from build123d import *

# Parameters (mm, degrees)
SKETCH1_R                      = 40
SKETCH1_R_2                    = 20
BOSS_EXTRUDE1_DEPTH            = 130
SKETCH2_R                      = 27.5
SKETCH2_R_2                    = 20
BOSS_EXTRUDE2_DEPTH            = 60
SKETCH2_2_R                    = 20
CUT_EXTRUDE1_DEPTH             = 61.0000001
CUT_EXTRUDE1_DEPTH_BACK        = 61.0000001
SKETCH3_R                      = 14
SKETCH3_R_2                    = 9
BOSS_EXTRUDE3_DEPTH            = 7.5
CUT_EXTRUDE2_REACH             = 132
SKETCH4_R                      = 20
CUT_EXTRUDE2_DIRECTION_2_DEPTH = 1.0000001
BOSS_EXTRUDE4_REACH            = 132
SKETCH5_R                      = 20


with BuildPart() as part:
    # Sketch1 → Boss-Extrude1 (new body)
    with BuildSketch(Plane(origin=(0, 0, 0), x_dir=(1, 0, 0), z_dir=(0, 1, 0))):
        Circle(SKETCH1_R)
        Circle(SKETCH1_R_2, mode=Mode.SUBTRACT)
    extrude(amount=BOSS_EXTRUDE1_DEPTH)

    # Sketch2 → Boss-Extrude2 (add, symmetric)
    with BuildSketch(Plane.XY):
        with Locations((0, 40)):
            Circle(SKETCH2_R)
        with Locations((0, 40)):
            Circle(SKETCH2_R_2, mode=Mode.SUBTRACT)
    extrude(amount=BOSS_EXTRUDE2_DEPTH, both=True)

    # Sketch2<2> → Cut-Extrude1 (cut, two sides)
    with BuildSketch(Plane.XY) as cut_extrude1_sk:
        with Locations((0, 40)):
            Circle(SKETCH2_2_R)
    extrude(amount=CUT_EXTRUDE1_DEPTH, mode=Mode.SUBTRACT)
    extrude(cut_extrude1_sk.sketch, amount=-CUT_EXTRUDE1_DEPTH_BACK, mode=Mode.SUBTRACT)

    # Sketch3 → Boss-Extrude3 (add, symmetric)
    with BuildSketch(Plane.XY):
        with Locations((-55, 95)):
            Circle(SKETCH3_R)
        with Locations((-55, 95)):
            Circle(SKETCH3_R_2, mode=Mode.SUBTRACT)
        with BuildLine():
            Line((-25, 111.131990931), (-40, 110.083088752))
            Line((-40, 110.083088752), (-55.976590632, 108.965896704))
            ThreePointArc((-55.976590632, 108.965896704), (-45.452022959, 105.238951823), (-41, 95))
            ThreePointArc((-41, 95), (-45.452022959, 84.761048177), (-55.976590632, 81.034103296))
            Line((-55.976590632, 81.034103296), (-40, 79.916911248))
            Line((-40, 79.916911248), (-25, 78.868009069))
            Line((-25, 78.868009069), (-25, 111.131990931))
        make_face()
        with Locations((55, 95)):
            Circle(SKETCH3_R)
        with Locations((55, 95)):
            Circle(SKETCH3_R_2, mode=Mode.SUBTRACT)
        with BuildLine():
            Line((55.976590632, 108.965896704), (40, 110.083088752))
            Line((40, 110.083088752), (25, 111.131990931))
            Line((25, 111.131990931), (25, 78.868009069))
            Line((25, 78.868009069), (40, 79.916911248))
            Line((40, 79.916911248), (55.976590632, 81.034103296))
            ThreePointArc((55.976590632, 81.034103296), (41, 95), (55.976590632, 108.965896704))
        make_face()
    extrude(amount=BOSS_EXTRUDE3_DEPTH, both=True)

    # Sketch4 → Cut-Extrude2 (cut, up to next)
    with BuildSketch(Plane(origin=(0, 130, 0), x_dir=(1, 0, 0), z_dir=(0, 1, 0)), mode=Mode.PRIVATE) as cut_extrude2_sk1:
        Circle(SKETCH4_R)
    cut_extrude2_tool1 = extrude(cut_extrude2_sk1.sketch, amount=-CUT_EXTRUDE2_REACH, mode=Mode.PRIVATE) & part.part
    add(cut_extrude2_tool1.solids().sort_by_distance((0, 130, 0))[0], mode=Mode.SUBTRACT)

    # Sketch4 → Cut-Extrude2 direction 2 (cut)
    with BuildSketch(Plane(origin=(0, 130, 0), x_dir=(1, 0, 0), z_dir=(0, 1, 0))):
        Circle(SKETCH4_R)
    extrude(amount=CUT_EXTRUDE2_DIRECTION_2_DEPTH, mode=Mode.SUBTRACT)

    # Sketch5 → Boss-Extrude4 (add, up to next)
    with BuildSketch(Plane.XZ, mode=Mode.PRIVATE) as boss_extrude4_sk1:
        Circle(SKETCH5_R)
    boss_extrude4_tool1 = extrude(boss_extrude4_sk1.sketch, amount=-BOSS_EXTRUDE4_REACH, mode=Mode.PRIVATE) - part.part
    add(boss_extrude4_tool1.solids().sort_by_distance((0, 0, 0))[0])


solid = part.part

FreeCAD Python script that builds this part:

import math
import FreeCAD as App
import Part
import Sketcher
Q = App.Units.Quantity

doc = App.newDocument("Part")
body = doc.addObject("PartDesign::Body", "Body")

# Sketch on XZ plane
sketch1 = doc.addObject("Sketcher::SketchObject", "Sketch")
body.addObject(sketch1)
sketch1.AttachmentSupport = (doc.XZ_Plane, [""])
sketch1.MapMode = "FlatFace"
sketch1.addGeometry(Part.Circle(App.Vector(0, 0, 0), App.Vector(0, 0, 1), 40), False)
sketch1.addGeometry(Part.Circle(App.Vector(0, 0, 0), App.Vector(0, 0, 1), 20), False)
sketch1.addConstraint(Sketcher.Constraint("Coincident", 0, 3, -1, 1))
sketch1.addConstraint(Sketcher.Constraint("Coincident", 1, 3, -1, 1))
sketch1.addConstraint(Sketcher.Constraint("Diameter", 0, 80.0))
sketch1.addConstraint(Sketcher.Constraint("Diameter", 1, 40.0))
pad1 = doc.addObject("PartDesign::Pad", "Pad")
body.addObject(pad1)
pad1.Profile = sketch1
pad1.Length = 130
pad1.Reversed = True

# Sketch on XY plane
sketch2 = doc.addObject("Sketcher::SketchObject", "Sketch001")
body.addObject(sketch2)
sketch2.AttachmentSupport = (doc.XY_Plane, [""])
sketch2.MapMode = "FlatFace"
sketch2.addGeometry(Part.Circle(App.Vector(0, 40, 0), App.Vector(0, 0, 1), 28), False)
sketch2.addGeometry(Part.Circle(App.Vector(0, 40, 0), App.Vector(0, 0, 1), 20), False)
sketch2.addConstraint(Sketcher.Constraint("Coincident", 1, 3, 0, 3))
sketch2.addConstraint(Sketcher.Constraint("PointOnObject", 0, 3, -2))
sketch2.addConstraint(Sketcher.Constraint("Diameter", 0, 55.0))
sketch2.addConstraint(Sketcher.Constraint("Diameter", 1, 40.0))
sketch2.addConstraint(Sketcher.Constraint("DistanceY", -1, 1, 0, 3, 40.0))
pad2 = doc.addObject("PartDesign::Pad", "Pad001")
body.addObject(pad2)
pad2.Profile = sketch2
pad2.Length = 120
pad2.Midplane = True

# Sketch on XY plane
sketch3 = doc.addObject("Sketcher::SketchObject", "Sketch002")
body.addObject(sketch3)
sketch3.AttachmentSupport = (doc.XY_Plane, [""])
sketch3.MapMode = "FlatFace"
sketch3.addGeometry(Part.Circle(App.Vector(0, 40, 0), App.Vector(0, 0, 1), 20), False)
sketch3.addConstraint(Sketcher.Constraint("PointOnObject", 0, 3, -2))
sketch3.addConstraint(Sketcher.Constraint("Diameter", 0, 40.0))
sketch3.addConstraint(Sketcher.Constraint("DistanceY", -1, 1, 0, 3, 40.0))
pocket1 = doc.addObject("PartDesign::Pocket", "Pocket")
body.addObject(pocket1)
pocket1.Profile = sketch3
pocket1.Type = "ThroughAll"
pocket1.Midplane = True

# Sketch on XY plane
sketch4 = doc.addObject("Sketcher::SketchObject", "Sketch003")
body.addObject(sketch4)
sketch4.AttachmentSupport = (doc.XY_Plane, [""])
sketch4.MapMode = "FlatFace"
sketch4.addGeometry(Part.ArcOfCircle(Part.Circle(App.Vector(-55, 95, 0), App.Vector(0, 0, 1), 14), math.radians(94), math.radians(266)), False)
sketch4.addGeometry(Part.LineSegment(App.Vector(-56, 81, 0), App.Vector(-40, 80, 0)), False)
sketch4.addGeometry(Part.LineSegment(App.Vector(-40, 80, 0), App.Vector(-25, 79, 0)), False)
sketch4.addGeometry(Part.LineSegment(App.Vector(-25, 79, 0), App.Vector(-25, 111, 0)), False)
sketch4.addGeometry(Part.LineSegment(App.Vector(-25, 111, 0), App.Vector(-40, 110, 0)), False)
sketch4.addGeometry(Part.LineSegment(App.Vector(-40, 110, 0), App.Vector(-56, 109, 0)), False)
sketch4.addGeometry(Part.Circle(App.Vector(-55, 95, 0), App.Vector(0, 0, 1), 9), False)
sketch4.addGeometry(Part.LineSegment(App.Vector(56, 109, 0), App.Vector(40, 110, 0)), False)
sketch4.addGeometry(Part.LineSegment(App.Vector(40, 110, 0), App.Vector(25, 111, 0)), False)
sketch4.addGeometry(Part.LineSegment(App.Vector(25, 111, 0), App.Vector(25, 79, 0)), False)
sketch4.addGeometry(Part.LineSegment(App.Vector(25, 79, 0), App.Vector(40, 80, 0)), False)
sketch4.addGeometry(Part.LineSegment(App.Vector(40, 80, 0), App.Vector(56, 81, 0)), False)
sketch4.addGeometry(Part.ArcOfCircle(Part.Circle(App.Vector(55, 95, 0), App.Vector(0, 0, 1), 14), math.radians(-86), math.radians(86)), False)
sketch4.addGeometry(Part.Circle(App.Vector(55, 95, 0), App.Vector(0, 0, 1), 9), False)
sketch4.addConstraint(Sketcher.Constraint("Tangent", 0, 2, 1, 1))
sketch4.addConstraint(Sketcher.Constraint("Coincident", 1, 2, 2, 1))
sketch4.addConstraint(Sketcher.Constraint("Coincident", 2, 2, 3, 1))
sketch4.addConstraint(Sketcher.Constraint("Coincident", 3, 2, 4, 1))
sketch4.addConstraint(Sketcher.Constraint("Coincident", 4, 2, 5, 1))
sketch4.addConstraint(Sketcher.Constraint("Tangent", 5, 2, 0, 1))
sketch4.addConstraint(Sketcher.Constraint("Coincident", 7, 2, 8, 1))
sketch4.addConstraint(Sketcher.Constraint("Coincident", 8, 2, 9, 1))
sketch4.addConstraint(Sketcher.Constraint("Coincident", 9, 2, 10, 1))
sketch4.addConstraint(Sketcher.Constraint("Coincident", 10, 2, 11, 1))
sketch4.addConstraint(Sketcher.Constraint("Tangent", 11, 2, 12, 1))
sketch4.addConstraint(Sketcher.Constraint("Tangent", 12, 2, 7, 1))
sketch4.addConstraint(Sketcher.Constraint("Vertical", 3))
sketch4.addConstraint(Sketcher.Constraint("Vertical", 9))
sketch4.addConstraint(Sketcher.Constraint("Coincident", 6, 3, 0, 3))
sketch4.addConstraint(Sketcher.Constraint("Coincident", 13, 3, 12, 3))
sketch4.addConstraint(Sketcher.Constraint("Equal", 0, 12))
sketch4.addConstraint(Sketcher.Constraint("Equal", 6, 13))
sketch4.addConstraint(Sketcher.Constraint("Symmetric", 0, 3, 12, 3, -2))
sketch4.addConstraint(Sketcher.Constraint("Symmetric", 4, 2, 7, 2, -2))
sketch4.addConstraint(Sketcher.Constraint("Symmetric", 3, 2, 8, 2, -2))
sketch4.addConstraint(Sketcher.Constraint("Symmetric", 1, 2, 10, 2, -2))
sketch4.addConstraint(Sketcher.Constraint("Parallel", 1, 2))
sketch4.addConstraint(Sketcher.Constraint("Parallel", 4, 5))
sketch4.addConstraint(Sketcher.Constraint("Parallel", 2, 7))
sketch4.addConstraint(Sketcher.Constraint("Parallel", 5, 10))
sketch4.addConstraint(Sketcher.Constraint("Vertical", 1, 2, 4, 2))
sketch4.addConstraint(Sketcher.Constraint("Diameter", 6, 18.0))
sketch4.addConstraint(Sketcher.Constraint("Radius", 0, 14.0))
sketch4.addConstraint(Sketcher.Constraint("Angle", 1, Q("-4 deg")))
sketch4.addConstraint(Sketcher.Constraint("DistanceX", 0, 3, -1, 1, 55.0))
sketch4.addConstraint(Sketcher.Constraint("DistanceY", -1, 1, 0, 3, 95.0))
sketch4.addConstraint(Sketcher.Constraint("DistanceX", 1, 2, -1, 1, 40.0))
sketch4.addConstraint(Sketcher.Constraint("DistanceX", 2, 2, -1, 1, 25.0))
pad3 = doc.addObject("PartDesign::Pad", "Pad002")
body.addObject(pad3)
pad3.Profile = sketch4
pad3.Length = 15
pad3.Midplane = True

# Sketch on XZ plane
sketch5 = doc.addObject("Sketcher::SketchObject", "Sketch004")
body.addObject(sketch5)
sketch5.AttachmentSupport = (doc.XZ_Plane, [""])
sketch5.MapMode = "FlatFace"
sketch5.AttachmentOffset = App.Placement(App.Vector(0, 0, -130), App.Rotation())
sketch5.addGeometry(Part.Circle(App.Vector(0, 0, 0), App.Vector(0, 0, 1), 20), False)
sketch5.addConstraint(Sketcher.Constraint("Coincident", 0, 3, -1, 1))
sketch5.addConstraint(Sketcher.Constraint("Diameter", 0, 40.0))
pocket2 = doc.addObject("PartDesign::Pocket", "Pocket001")
body.addObject(pocket2)
pocket2.Profile = sketch5
pocket2.Length = 90
pocket2.Reversed = True

# Sketch on XZ plane
sketch6 = doc.addObject("Sketcher::SketchObject", "Sketch005")
body.addObject(sketch6)
sketch6.AttachmentSupport = (doc.XZ_Plane, [""])
sketch6.MapMode = "FlatFace"
sketch6.AttachmentOffset = App.Placement(App.Vector(0, 0, -130), App.Rotation())
sketch6.addGeometry(Part.Circle(App.Vector(0, 0, 0), App.Vector(0, 0, 1), 20), False)
sketch6.addConstraint(Sketcher.Constraint("Coincident", 0, 3, -1, 1))
sketch6.addConstraint(Sketcher.Constraint("Diameter", 0, 40.0))
pocket3 = doc.addObject("PartDesign::Pocket", "Pocket002")
body.addObject(pocket3)
pocket3.Profile = sketch6
pocket3.Length = 1

# Sketch on XZ plane
sketch7 = doc.addObject("Sketcher::SketchObject", "Sketch006")
body.addObject(sketch7)
sketch7.AttachmentSupport = (doc.XZ_Plane, [""])
sketch7.MapMode = "FlatFace"
sketch7.addGeometry(Part.Circle(App.Vector(0, 0, 0), App.Vector(0, 0, 1), 20), False)
sketch7.addConstraint(Sketcher.Constraint("Coincident", 0, 3, -1, 1))
sketch7.addConstraint(Sketcher.Constraint("Diameter", 0, 40.0))
pad4 = doc.addObject("PartDesign::Pad", "Pad003")
body.addObject(pad4)
pad4.Profile = sketch7
pad4.Type = "UpToFirst"
pad4.Reversed = True

doc.recompute()
